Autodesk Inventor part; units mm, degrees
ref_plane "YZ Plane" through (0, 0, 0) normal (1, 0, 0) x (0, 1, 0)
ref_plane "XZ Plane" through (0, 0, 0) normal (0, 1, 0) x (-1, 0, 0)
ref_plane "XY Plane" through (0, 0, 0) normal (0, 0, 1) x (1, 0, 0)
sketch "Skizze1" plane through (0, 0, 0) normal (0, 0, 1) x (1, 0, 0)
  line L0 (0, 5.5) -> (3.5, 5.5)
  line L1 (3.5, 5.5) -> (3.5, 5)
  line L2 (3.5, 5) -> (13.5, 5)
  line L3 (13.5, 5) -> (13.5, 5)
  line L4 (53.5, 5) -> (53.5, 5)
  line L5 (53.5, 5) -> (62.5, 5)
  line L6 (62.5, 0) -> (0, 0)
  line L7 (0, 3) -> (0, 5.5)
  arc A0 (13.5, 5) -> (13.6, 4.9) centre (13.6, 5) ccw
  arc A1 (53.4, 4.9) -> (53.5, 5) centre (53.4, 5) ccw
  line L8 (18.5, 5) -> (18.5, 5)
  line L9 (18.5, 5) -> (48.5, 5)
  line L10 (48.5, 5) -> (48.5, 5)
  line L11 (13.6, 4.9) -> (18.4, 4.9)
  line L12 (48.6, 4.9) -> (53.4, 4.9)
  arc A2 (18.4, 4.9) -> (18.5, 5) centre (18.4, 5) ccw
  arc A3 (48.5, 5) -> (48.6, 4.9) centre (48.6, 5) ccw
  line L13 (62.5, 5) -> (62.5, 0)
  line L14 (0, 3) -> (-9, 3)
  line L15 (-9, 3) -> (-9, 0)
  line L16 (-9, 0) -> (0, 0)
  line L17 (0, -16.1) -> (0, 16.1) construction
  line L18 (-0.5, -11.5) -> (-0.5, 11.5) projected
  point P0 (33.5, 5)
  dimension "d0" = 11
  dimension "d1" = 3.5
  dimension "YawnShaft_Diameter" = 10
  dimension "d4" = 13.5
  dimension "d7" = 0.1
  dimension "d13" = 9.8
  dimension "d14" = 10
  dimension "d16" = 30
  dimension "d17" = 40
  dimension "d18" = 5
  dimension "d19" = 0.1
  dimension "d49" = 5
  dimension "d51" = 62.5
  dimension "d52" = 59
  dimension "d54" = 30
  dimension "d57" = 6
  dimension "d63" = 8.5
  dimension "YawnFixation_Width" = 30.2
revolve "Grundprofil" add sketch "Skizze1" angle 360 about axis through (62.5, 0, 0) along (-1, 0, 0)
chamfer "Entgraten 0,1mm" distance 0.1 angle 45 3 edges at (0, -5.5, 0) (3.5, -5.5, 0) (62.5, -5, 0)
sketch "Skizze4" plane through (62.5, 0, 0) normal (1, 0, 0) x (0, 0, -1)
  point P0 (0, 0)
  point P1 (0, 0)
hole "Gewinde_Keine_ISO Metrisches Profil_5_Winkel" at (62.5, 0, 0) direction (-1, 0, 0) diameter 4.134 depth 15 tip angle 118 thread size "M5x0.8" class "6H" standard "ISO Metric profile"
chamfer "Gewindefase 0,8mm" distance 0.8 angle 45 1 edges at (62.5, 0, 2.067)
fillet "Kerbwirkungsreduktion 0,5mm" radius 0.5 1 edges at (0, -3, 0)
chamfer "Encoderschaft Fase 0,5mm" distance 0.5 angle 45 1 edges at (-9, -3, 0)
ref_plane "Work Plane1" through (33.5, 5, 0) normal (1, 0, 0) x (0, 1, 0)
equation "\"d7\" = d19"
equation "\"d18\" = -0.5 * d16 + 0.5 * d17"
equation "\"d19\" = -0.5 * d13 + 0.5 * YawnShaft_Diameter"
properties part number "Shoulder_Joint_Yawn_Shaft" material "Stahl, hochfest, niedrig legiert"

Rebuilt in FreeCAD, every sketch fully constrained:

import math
import FreeCAD as App
import Part
import Sketcher
Q = App.Units.Quantity


def edges_at(feature, points):
    """Names of the edges that pass closest to the given points."""
    edges = feature.Shape.Edges
    near = lambda p: min(range(len(edges)), key=lambda i: edges[i].distToShape(Part.Vertex(*p))[0])
    return sorted({f"Edge{near(p) + 1}" for p in points})

doc = App.newDocument("Part")
body = doc.addObject("PartDesign::Body", "Body")

sketch1 = doc.addObject("Sketcher::SketchObject", "Sketch")
body.addObject(sketch1)
sketch1.AttachmentSupport = (doc.XY_Plane, [""])
sketch1.MapMode = "FlatFace"
sketch1.addGeometry([
    Part.LineSegment(App.Vector(3.5, 5.5, 0), App.Vector(0, 5.5, 0)),
    Part.LineSegment(App.Vector(0, 5.5, 0), App.Vector(0, 3, 0)),
    Part.LineSegment(App.Vector(0, 3, 0), App.Vector(-9, 3, 0)),
    Part.LineSegment(App.Vector(-9, 3, 0), App.Vector(-9, 0, 0)),
    Part.LineSegment(App.Vector(-9, 0, 0), App.Vector(62.5, 0, 0)),
    Part.LineSegment(App.Vector(62.5, 0, 0), App.Vector(62.5, 5, 0)),
    Part.LineSegment(App.Vector(62.5, 5, 0), App.Vector(53.5, 5, 0)),
    Part.ArcOfCircle(Part.Circle(App.Vector(53.4, 5, 0), App.Vector(0, 0, 1), 0.1), math.radians(-90), math.radians(0)),
    Part.LineSegment(App.Vector(53.4, 4.9, 0), App.Vector(48.6, 4.9, 0)),
    Part.ArcOfCircle(Part.Circle(App.Vector(48.6, 5, 0), App.Vector(0, 0, 1), 0.1), math.radians(180), math.radians(270)),
    Part.LineSegment(App.Vector(48.5, 5, 0), App.Vector(18.5, 5, 0)),
    Part.ArcOfCircle(Part.Circle(App.Vector(18.4, 5, 0), App.Vector(0, 0, 1), 0.1), math.radians(-90), math.radians(0)),
    Part.LineSegment(App.Vector(18.4, 4.9, 0), App.Vector(13.6, 4.9, 0)),
    Part.ArcOfCircle(Part.Circle(App.Vector(13.6, 5, 0), App.Vector(0, 0, 1), 0.1), math.radians(180), math.radians(270)),
    Part.LineSegment(App.Vector(13.5, 5, 0), App.Vector(3.5, 5, 0)),
    Part.LineSegment(App.Vector(3.5, 5, 0), App.Vector(3.5, 5.5, 0)),
], False)
sketch1.addConstraint([
    Sketcher.Constraint("Coincident", 0, 2, 1, 1),
    Sketcher.Constraint("Coincident", 1, 2, 2, 1),
    Sketcher.Constraint("Coincident", 2, 2, 3, 1),
    Sketcher.Constraint("Coincident", 3, 2, 4, 1),
    Sketcher.Constraint("Coincident", 4, 2, 5, 1),
    Sketcher.Constraint("Coincident", 5, 2, 6, 1),
    Sketcher.Constraint("Coincident", 6, 2, 7, 2),
    Sketcher.Constraint("Tangent", 7, 1, 8, 1),
    Sketcher.Constraint("Tangent", 8, 2, 9, 2),
    Sketcher.Constraint("Coincident", 9, 1, 10, 1),
    Sketcher.Constraint("Coincident", 10, 2, 11, 2),
    Sketcher.Constraint("Tangent", 11, 1, 12, 1),
    Sketcher.Constraint("Tangent", 12, 2, 13, 2),
    Sketcher.Constraint("Coincident", 13, 1, 14, 1),
    Sketcher.Constraint("Coincident", 14, 2, 15, 1),
    Sketcher.Constraint("Coincident", 15, 2, 0, 1),
    Sketcher.Constraint("Horizontal", 0),
    Sketcher.Constraint("Vertical", 1),
    Sketcher.Constraint("Horizontal", 2),
    Sketcher.Constraint("Vertical", 3),
    Sketcher.Constraint("Horizontal", 4),
    Sketcher.Constraint("Vertical", 5),
    Sketcher.Constraint("Horizontal", 6),
    Sketcher.Constraint("Horizontal", 8),
    Sketcher.Constraint("Horizontal", 10),
    Sketcher.Constraint("Horizontal", 12),
    Sketcher.Constraint("Horizontal", 14),
    Sketcher.Constraint("Vertical", 15),
    Sketcher.Constraint("Equal", 7, 9),
    Sketcher.Constraint("Equal", 9, 11),
    Sketcher.Constraint("Equal", 11, 13),
    Sketcher.Constraint("PointOnObject", 0, 2, -2),
    Sketcher.Constraint("PointOnObject", 3, 2, -1),
    Sketcher.Constraint("Horizontal", 9, 3, 11, 3),
    Sketcher.Constraint("Horizontal", 13, 3, 5, 2),
    Sketcher.Constraint("Horizontal", 6, 2, 9, 1),
    Sketcher.Constraint("Horizontal", 10, 2, 13, 1),
    Sketcher.Constraint("Equal", 2, 6),
    Sketcher.Constraint("Equal", 8, 12),
    Sketcher.Constraint("Radius", 7, Q("0.1 mm")),
    Sketcher.Constraint("DistanceX", 10, 2, 10, 1, Q("30 mm")),
    Sketcher.Constraint("DistanceX", 14, 2, 14, 1, Q("10 mm")),
    Sketcher.Constraint("DistanceY", 5, 1, 5, 2, Q("5 mm")),
    Sketcher.Constraint("DistanceX", 0, 2, 0, 1, Q("3.5 mm")),
    Sketcher.Constraint("DistanceX", 9, 1, 6, 2, Q("5 mm")),
    Sketcher.Constraint("DistanceX", -1, 1, 4, 2, Q("62.5 mm")),
    Sketcher.Constraint("DistanceY", 3, 2, 3, 1, Q("3 mm")),
    Sketcher.Constraint("DistanceY", 1, 2, 1, 1, Q("2.5 mm")),
])
revolution = doc.addObject("PartDesign::Revolution", "Revolution")
body.addObject(revolution)
revolution.Profile = sketch1
revolution.ReferenceAxis = (sketch1, ["H_Axis"])
revolution.Angle = 360
doc.recompute()

chamfer = doc.addObject("PartDesign::Chamfer", "Chamfer")
body.addObject(chamfer)
chamfer.Base = (revolution, edges_at(revolution, [(0, -5.5, 0), (3.5, -5.5, 0), (62.5, -5, 0)]))
chamfer.Size = 0.1

sketch2 = doc.addObject("Sketcher::SketchObject", "Sketch001")
body.addObject(sketch2)
sketch2.AttachmentSupport = (doc.YZ_Plane, [""])
sketch2.MapMode = "FlatFace"
sketch2.AttachmentOffset = App.Placement(App.Vector(0, 0, 62.5), App.Rotation())
sketch2.addGeometry(Part.Circle(App.Vector(0, 0, 0), App.Vector(0, 0, 1), 2.067), False)
sketch2.addConstraint([
    Sketcher.Constraint("Coincident", 0, 3, -1, 1),
    Sketcher.Constraint("Diameter", 0, Q("4.134 mm")),
])
doc.recompute()
hole = doc.addObject("PartDesign::Hole", "Hole")
body.addObject(hole)
hole.Profile = sketch2
hole.ThreadType = "None"
hole.Diameter = 4.134
hole.DepthType = "Dimension"
hole.Depth = 15
hole.DrillPoint = "Angled"
hole.DrillPointAngle = 118
doc.recompute()

chamfer2 = doc.addObject("PartDesign::Chamfer", "Chamfer001")
body.addObject(chamfer2)
chamfer2.Base = (hole, edges_at(hole, [(62.5, 0, 2.067)]))
chamfer2.Size = 0.8
doc.recompute()

fillet = doc.addObject("PartDesign::Fillet", "Fillet")
body.addObject(fillet)
fillet.Base = (chamfer2, edges_at(chamfer2, [(0, -3, 0)]))
fillet.Radius = 0.5
doc.recompute()

chamfer3 = doc.addObject("PartDesign::Chamfer", "Chamfer002")
body.addObject(chamfer3)
chamfer3.Base = (fillet, edges_at(fillet, [(-9, -3, 0)]))
chamfer3.Size = 0.5

doc.recompute()
